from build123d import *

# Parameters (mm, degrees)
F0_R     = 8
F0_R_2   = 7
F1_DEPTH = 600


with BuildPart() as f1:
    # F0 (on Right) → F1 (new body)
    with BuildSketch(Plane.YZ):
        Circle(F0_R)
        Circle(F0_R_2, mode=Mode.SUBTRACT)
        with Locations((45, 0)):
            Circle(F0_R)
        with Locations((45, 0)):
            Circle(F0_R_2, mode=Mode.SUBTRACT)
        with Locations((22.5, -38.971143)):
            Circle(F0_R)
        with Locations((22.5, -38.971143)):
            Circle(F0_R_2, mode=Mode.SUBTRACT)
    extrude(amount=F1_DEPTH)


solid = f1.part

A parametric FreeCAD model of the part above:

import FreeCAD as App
import Part
import Sketcher
from FreeCAD import Vector

doc = App.newDocument("Part")
params = doc.addObject("Spreadsheet::Sheet", "Params")
for row, (alias, value) in enumerate([
    ("sketch1_diameter", "16 mm"),
    ("sketch1_diameter2", "14 mm"),
    ("pad1_length", "600 mm"),
], start=1):
    params.set(f"A{row}", alias)
    params.set(f"B{row}", "=" + value)
    params.setAlias(f"B{row}", alias)

body = doc.addObject("PartDesign::Body", "Body")
body.AllowCompound = True

# Sketch on YZ plane
sketch1 = doc.addObject("Sketcher::SketchObject", "Sketch")
body.addObject(sketch1)
sketch1.AttachmentSupport = (doc.YZ_Plane, [""])
sketch1.MapMode = "FlatFace"
sketch1.addGeometry([
    Part.Circle(Vector(0, 0, 0), Vector(0, 0, 1), 8),  # 0
    Part.Circle(Vector(0, 0, 0), Vector(0, 0, 1), 7),  # 1
    Part.Circle(Vector(45, 0, 0), Vector(0, 0, 1), 8),  # 2
    Part.Circle(Vector(45, 0, 0), Vector(0, 0, 1), 7),  # 3
    Part.Circle(Vector(22, -39, 0), Vector(0, 0, 1), 8),  # 4
    Part.Circle(Vector(22, -39, 0), Vector(0, 0, 1), 7),  # 5
], False)
sketch1.addConstraint([
    Sketcher.Constraint("Coincident", 0, 3, -1, 1),
    Sketcher.Constraint("Coincident", 1, 3, -1, 1),
    Sketcher.Constraint("Coincident", 3, 3, 2, 3),
    Sketcher.Constraint("Coincident", 5, 3, 4, 3),
    Sketcher.Constraint("Equal", 0, 2),
    Sketcher.Constraint("Equal", 1, 3),
    Sketcher.Constraint("Equal", 2, 4),
    Sketcher.Constraint("Equal", 3, 5),
    Sketcher.Constraint("PointOnObject", 2, 3, -1),
    Sketcher.Constraint("Diameter", 0, 16.0),
    Sketcher.Constraint("Diameter", 1, 14.0),
    Sketcher.Constraint("DistanceX", -1, 1, 2, 3, 45.0),
    Sketcher.Constraint("DistanceX", -1, 1, 4, 3, 22.5),
    Sketcher.Constraint("DistanceY", 4, 3, -1, 1, 38.971143),
])
sketch1.setExpression("Constraints[9]", "Params.sketch1_diameter")
sketch1.setExpression("Constraints[10]", "Params.sketch1_diameter2")
pad1 = doc.addObject("PartDesign::Pad", "Pad")
body.addObject(pad1)
pad1.Profile = sketch1
pad1.setExpression("Length", "Params.pad1_length")

doc.recompute()
